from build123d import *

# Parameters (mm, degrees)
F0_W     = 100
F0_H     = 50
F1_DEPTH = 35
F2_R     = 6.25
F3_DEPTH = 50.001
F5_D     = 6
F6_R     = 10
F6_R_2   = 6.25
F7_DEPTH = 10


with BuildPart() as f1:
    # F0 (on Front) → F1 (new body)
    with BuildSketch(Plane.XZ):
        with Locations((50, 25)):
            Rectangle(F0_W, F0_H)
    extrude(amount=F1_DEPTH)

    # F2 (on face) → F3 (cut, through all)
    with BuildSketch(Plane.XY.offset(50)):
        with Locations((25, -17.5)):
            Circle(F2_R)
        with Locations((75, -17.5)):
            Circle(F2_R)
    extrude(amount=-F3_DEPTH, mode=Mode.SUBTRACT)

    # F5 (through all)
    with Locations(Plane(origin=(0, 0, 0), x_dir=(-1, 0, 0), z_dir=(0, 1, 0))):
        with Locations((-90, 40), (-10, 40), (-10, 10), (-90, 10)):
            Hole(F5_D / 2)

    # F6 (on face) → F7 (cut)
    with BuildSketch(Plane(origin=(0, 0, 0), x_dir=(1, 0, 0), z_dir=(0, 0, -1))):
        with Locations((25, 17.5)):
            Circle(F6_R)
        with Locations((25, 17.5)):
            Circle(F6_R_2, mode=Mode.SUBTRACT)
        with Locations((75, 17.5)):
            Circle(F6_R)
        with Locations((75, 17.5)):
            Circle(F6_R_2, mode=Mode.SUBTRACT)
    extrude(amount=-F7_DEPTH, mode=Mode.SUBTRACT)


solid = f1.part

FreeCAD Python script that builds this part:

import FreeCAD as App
import Part
import Sketcher
Q = App.Units.Quantity


def add_polygon(sketch, points):
    """Adds a closed chain of lines whose ends are joined by coincident constraints."""
    first, n = sketch.GeometryCount, len(points)
    for a, b in zip(points, points[1:] + points[:1]):
        sketch.addGeometry(Part.LineSegment(App.Vector(*a, 0), App.Vector(*b, 0)), False)
    for i in range(n):
        sketch.addConstraint(Sketcher.Constraint("Coincident", first + i, 2, first + (i + 1) % n, 1))

doc = App.newDocument("Part")
body = doc.addObject("PartDesign::Body", "Body")

# Sketch on XZ plane
sketch1 = doc.addObject("Sketcher::SketchObject", "Sketch")
body.addObject(sketch1)
sketch1.AttachmentSupport = (doc.XZ_Plane, [""])
sketch1.MapMode = "FlatFace"
add_polygon(sketch1, [(0, 50), (0, 0), (100, 0), (100, 50)])  # lines 0-3
sketch1.addConstraint([
    Sketcher.Constraint("Vertical", 0),
    Sketcher.Constraint("Horizontal", 1),
    Sketcher.Constraint("Vertical", 2),
    Sketcher.Constraint("Horizontal", 3),
    Sketcher.Constraint("Coincident", 0, 2, -1, 1),
    Sketcher.Constraint("DistanceX", 1, 1, 1, 2, Q("100 mm")),
    Sketcher.Constraint("DistanceY", 0, 2, 0, 1, Q("50 mm")),
])
pad1 = doc.addObject("PartDesign::Pad", "Pad")
body.addObject(pad1)
pad1.Profile = sketch1
pad1.Length = 35

# Sketch on XY plane
sketch2 = doc.addObject("Sketcher::SketchObject", "Sketch001")
body.addObject(sketch2)
sketch2.AttachmentSupport = (doc.XY_Plane, [""])
sketch2.MapMode = "FlatFace"
sketch2.AttachmentOffset = App.Placement(App.Vector(0, 0, 50), App.Rotation())
sketch2.addGeometry([
    Part.Circle(App.Vector(25, -18, 0), App.Vector(0, 0, 1), 6),
    Part.Circle(App.Vector(75, -18, 0), App.Vector(0, 0, 1), 6),
], False)
sketch2.addConstraint([
    Sketcher.Constraint("Equal", 0, 1),
    Sketcher.Constraint("Horizontal", 0, 3, 1, 3),
    Sketcher.Constraint("Diameter", 0, Q("12.5 mm")),
    Sketcher.Constraint("DistanceX", -1, 1, 0, 3, Q("25 mm")),
    Sketcher.Constraint("DistanceX", -1, 1, 1, 3, Q("75 mm")),
    Sketcher.Constraint("DistanceY", 0, 3, -1, 1, Q("17.5 mm")),
])
pocket1 = doc.addObject("PartDesign::Pocket", "Pocket")
body.addObject(pocket1)
pocket1.Profile = sketch2
pocket1.Type = "ThroughAll"

# Sketch on XZ plane
sketch3 = doc.addObject("Sketcher::SketchObject", "Sketch002")
body.addObject(sketch3)
sketch3.AttachmentSupport = (doc.XZ_Plane, [""])
sketch3.MapMode = "FlatFace"
sketch3.addGeometry([
    Part.Circle(App.Vector(90, 40, 0), App.Vector(0, 0, 1), 3),
    Part.Circle(App.Vector(10, 40, 0), App.Vector(0, 0, 1), 3),
    Part.Circle(App.Vector(10, 10, 0), App.Vector(0, 0, 1), 3),
    Part.Circle(App.Vector(90, 10, 0), App.Vector(0, 0, 1), 3),
], False)
sketch3.addConstraint([
    Sketcher.Constraint("Equal", 0, 1),
    Sketcher.Constraint("Equal", 1, 2),
    Sketcher.Constraint("Equal", 2, 3),
    Sketcher.Constraint("Horizontal", 0, 3, 1, 3),
    Sketcher.Constraint("Horizontal", 2, 3, 3, 3),
    Sketcher.Constraint("Vertical", 1, 3, 2, 3),
    Sketcher.Constraint("Vertical", 0, 3, 3, 3),
    Sketcher.Constraint("Diameter", 0, Q("6 mm")),
    Sketcher.Constraint("DistanceX", -1, 1, 0, 3, Q("90 mm")),
    Sketcher.Constraint("DistanceY", -1, 1, 0, 3, Q("40 mm")),
    Sketcher.Constraint("DistanceX", -1, 1, 1, 3, Q("10 mm")),
    Sketcher.Constraint("DistanceY", -1, 1, 2, 3, Q("10 mm")),
])
doc.recompute()
hole = doc.addObject("PartDesign::Hole", "Hole")
body.addObject(hole)
hole.Profile = sketch3
hole.ThreadType = "None"
hole.Diameter = 6
hole.DepthType = "ThroughAll"
hole.Reversed = True

# Sketch on XY plane
sketch4 = doc.addObject("Sketcher::SketchObject", "Sketch003")
body.addObject(sketch4)
sketch4.AttachmentSupport = (doc.XY_Plane, [""])
sketch4.MapMode = "FlatFace"
sketch4.addGeometry([
    Part.Circle(App.Vector(25, -18, 0), App.Vector(0, 0, 1), 10),
    Part.Circle(App.Vector(25, -18, 0), App.Vector(0, 0, 1), 6),
    Part.Circle(App.Vector(75, -18, 0), App.Vector(0, 0, 1), 10),
    Part.Circle(App.Vector(75, -18, 0), App.Vector(0, 0, 1), 6),
], False)
sketch4.addConstraint([
    Sketcher.Constraint("Coincident", 1, 3, 0, 3),
    Sketcher.Constraint("Coincident", 3, 3, 2, 3),
    Sketcher.Constraint("Equal", 0, 2),
    Sketcher.Constraint("Equal", 1, 3),
    Sketcher.Constraint("Horizontal", 1, 3, 2, 3),
    Sketcher.Constraint("Diameter", 0, Q("20 mm")),
    Sketcher.Constraint("Diameter", 1, Q("12.5 mm")),
    Sketcher.Constraint("DistanceX", -1, 1, 0, 3, Q("25 mm")),
    Sketcher.Constraint("DistanceX", -1, 1, 2, 3, Q("75 mm")),
    Sketcher.Constraint("DistanceY", 0, 3, -1, 1, Q("17.5 mm")),
])
pocket2 = doc.addObject("PartDesign::Pocket", "Pocket001")
body.addObject(pocket2)
pocket2.Profile = sketch4
pocket2.Length = 10
pocket2.Reversed = True

doc.recompute()
